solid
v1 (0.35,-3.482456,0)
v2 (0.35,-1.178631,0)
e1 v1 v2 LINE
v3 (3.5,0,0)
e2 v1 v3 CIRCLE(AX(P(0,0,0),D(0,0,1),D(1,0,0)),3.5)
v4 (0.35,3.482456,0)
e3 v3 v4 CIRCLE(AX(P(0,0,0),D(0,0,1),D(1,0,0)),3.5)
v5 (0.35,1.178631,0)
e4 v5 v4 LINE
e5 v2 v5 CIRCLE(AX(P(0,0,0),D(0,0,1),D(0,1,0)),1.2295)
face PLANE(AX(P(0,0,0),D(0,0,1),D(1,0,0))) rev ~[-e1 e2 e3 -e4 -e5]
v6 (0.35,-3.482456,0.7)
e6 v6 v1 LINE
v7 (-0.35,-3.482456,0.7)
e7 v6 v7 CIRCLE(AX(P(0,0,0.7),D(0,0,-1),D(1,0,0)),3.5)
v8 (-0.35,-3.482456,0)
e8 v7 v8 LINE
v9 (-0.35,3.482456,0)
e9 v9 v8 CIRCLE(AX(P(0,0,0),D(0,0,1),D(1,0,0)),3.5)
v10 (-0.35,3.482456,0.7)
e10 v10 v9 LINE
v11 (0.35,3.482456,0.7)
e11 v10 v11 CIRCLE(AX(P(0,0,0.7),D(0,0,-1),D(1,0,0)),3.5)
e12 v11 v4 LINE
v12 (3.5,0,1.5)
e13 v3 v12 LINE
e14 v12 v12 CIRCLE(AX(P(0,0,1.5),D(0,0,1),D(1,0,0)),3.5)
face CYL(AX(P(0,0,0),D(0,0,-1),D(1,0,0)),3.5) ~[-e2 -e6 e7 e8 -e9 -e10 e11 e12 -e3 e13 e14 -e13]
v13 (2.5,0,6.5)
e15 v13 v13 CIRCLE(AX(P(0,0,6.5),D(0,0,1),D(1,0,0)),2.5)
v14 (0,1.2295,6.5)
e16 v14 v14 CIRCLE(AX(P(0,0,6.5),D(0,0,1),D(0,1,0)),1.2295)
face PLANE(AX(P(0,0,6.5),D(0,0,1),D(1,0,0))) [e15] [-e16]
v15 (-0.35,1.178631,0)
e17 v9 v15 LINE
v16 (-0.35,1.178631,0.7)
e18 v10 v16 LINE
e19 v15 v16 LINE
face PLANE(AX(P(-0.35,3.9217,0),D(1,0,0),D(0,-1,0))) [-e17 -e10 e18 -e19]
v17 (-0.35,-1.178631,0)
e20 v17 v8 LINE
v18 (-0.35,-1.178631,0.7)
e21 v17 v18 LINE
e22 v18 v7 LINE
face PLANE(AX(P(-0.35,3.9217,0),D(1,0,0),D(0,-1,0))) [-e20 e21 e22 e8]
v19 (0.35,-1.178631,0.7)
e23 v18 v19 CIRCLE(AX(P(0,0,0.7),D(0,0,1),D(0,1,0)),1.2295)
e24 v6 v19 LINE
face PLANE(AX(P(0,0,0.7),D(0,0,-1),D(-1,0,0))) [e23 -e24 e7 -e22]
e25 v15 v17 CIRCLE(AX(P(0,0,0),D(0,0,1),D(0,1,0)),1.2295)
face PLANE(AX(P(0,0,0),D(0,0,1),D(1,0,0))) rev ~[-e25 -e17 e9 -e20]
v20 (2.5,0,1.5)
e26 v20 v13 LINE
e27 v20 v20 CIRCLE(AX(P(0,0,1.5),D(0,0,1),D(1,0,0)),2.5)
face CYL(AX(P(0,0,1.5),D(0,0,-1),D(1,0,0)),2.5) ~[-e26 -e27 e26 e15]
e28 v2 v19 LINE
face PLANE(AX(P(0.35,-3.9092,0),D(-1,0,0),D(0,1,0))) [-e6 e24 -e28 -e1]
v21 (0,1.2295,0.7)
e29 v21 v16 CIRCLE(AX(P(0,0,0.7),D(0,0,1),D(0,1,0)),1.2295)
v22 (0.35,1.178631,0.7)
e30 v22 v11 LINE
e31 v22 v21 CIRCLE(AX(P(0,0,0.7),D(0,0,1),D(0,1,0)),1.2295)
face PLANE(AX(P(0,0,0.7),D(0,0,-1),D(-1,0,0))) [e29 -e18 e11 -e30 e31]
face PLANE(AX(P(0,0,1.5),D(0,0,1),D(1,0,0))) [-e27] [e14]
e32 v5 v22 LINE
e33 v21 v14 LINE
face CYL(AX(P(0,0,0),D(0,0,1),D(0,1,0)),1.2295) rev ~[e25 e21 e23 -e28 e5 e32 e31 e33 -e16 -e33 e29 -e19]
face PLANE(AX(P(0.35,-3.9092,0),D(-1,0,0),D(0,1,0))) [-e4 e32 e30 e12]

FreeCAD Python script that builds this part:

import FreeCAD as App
import Part
import Sketcher

V = App.Vector

doc = App.newDocument("Part")
body = doc.addObject("PartDesign::Body", "Body")

sketch1 = body.newObject("Sketcher::SketchObject", "Sketch")
sketch1.AttachmentSupport = (doc.getObject("XY_Plane"), [""])
sketch1.MapMode = "FlatFace"
sketch1.addGeometry(Part.Circle(V(0, 0, 0), V(0, 0, 1), 3.5), False)
sketch1.addConstraint([
    Sketcher.Constraint("Coincident", 0, 3, -1, 1),
    Sketcher.Constraint("Diameter", 0, 7.0),
])
pad1 = body.newObject("PartDesign::Pad", "Pad")
pad1.Profile = sketch1
pad1.Length = 1.5

sketch2 = body.newObject("Sketcher::SketchObject", "Sketch001")
sketch2.AttachmentSupport = (doc.getObject("XY_Plane"), [""])
sketch2.MapMode = "FlatFace"
sketch2.AttachmentOffset = App.Placement(V(0, 0, 1.5), App.Rotation())
sketch2.addGeometry(Part.Circle(V(0, 0, 0), V(0, 0, 1), 2.5), False)
sketch2.addConstraint([
    Sketcher.Constraint("Coincident", 0, 3, -1, 1),
    Sketcher.Constraint("Diameter", 0, 5.0),
])
pad2 = body.newObject("PartDesign::Pad", "Pad001")
pad2.Profile = sketch2
pad2.Length = 5

sketch3 = body.newObject("Sketcher::SketchObject", "Sketch002")
sketch3.AttachmentSupport = (doc.getObject("XY_Plane"), [""])
sketch3.MapMode = "FlatFace"
sketch3.addGeometry(Part.Circle(V(0, 0, 0), V(0, 0, 1), 1.2), False)
sketch3.addConstraint([
    Sketcher.Constraint("Coincident", 0, 3, -1, 1),
    Sketcher.Constraint("Diameter", 0, 2.459),
])
doc.recompute()
hole = body.newObject("PartDesign::Hole", "Hole")
hole.Profile = sketch3
hole.ThreadType = "None"
hole.Diameter = 2.459
hole.DepthType = "ThroughAll"
hole.Reversed = True

sketch4 = body.newObject("Sketcher::SketchObject", "Sketch003")
sketch4.AttachmentSupport = (doc.getObject("XY_Plane"), [""])
sketch4.MapMode = "FlatFace"
sketch4.addGeometry([
    Part.LineSegment(V(-0.3, 3.9, 0), V(0.3, 3.9, 0)),
    Part.LineSegment(V(0.3, 3.9, 0), V(0.3, -3.9, 0)),
    Part.LineSegment(V(0.3, -3.9, 0), V(-0.3, -3.9, 0)),
    Part.LineSegment(V(-0.3, -3.9, 0), V(-0.3, 3.9, 0)),
], False)
sketch4.addConstraint([
    Sketcher.Constraint("Coincident", 0, 2, 1, 1),
    Sketcher.Constraint("Coincident", 1, 2, 2, 1),
    Sketcher.Constraint("Coincident", 2, 2, 3, 1),
    Sketcher.Constraint("Coincident", 3, 2, 0, 1),
    Sketcher.Constraint("Horizontal", 0),
    Sketcher.Constraint("Vertical", 1),
    Sketcher.Constraint("Horizontal", 2),
    Sketcher.Constraint("Vertical", 3),
    Sketcher.Constraint("DistanceX", 0, 1, 0, 2, 0.7),
    Sketcher.Constraint("DistanceX", -1, 1, 0, 2, 0.35),
    Sketcher.Constraint("DistanceY", 1, 2, 1, 1, 7.831),
    Sketcher.Constraint("DistanceY", -1, 1, 0, 2, 3.9217),
])
pocket1 = body.newObject("PartDesign::Pocket", "Pocket")
pocket1.Profile = sketch4
pocket1.Length = 0.7
pocket1.Reversed = True

doc.recompute()
